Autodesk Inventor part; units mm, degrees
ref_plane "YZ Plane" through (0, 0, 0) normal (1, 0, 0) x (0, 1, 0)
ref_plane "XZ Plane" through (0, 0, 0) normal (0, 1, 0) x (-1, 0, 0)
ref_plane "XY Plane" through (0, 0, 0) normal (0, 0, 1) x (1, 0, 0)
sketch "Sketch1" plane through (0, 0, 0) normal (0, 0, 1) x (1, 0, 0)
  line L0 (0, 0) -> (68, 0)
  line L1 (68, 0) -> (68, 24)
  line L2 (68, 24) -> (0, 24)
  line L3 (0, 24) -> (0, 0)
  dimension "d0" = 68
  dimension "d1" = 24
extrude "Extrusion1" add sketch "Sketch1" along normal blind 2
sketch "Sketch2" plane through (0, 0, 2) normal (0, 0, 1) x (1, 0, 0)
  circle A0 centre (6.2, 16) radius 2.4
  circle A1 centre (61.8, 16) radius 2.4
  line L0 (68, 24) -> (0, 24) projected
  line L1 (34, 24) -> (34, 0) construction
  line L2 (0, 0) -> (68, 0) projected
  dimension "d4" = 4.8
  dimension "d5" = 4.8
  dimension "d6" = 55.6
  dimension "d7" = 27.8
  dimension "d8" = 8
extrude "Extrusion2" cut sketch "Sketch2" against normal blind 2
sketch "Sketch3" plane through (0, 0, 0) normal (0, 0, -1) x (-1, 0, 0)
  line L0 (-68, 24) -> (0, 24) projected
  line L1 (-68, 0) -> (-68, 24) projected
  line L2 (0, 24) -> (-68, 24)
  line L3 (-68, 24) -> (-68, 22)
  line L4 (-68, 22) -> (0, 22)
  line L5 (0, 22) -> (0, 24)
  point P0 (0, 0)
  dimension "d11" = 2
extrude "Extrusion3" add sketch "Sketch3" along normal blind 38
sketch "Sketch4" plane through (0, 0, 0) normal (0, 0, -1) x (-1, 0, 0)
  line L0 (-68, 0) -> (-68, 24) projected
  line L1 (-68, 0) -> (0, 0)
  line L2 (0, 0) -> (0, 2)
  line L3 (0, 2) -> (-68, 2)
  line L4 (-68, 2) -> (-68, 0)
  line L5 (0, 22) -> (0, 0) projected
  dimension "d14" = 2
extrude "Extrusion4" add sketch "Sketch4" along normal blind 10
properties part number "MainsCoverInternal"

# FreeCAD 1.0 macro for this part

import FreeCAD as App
import Part
import Sketcher
from FreeCAD import Vector

doc = App.newDocument("Part")
body = doc.addObject("PartDesign::Body", "Body")

# Sketch on XY plane
sketch1 = body.newObject("Sketcher::SketchObject", "Sketch")
sketch1.AttachmentSupport = (doc.getObject("XY_Plane"), [""])
sketch1.MapMode = "FlatFace"
sketch1.addGeometry(Part.LineSegment(Vector(0, 24, 0), Vector(0, 0, 0)), False)
sketch1.addGeometry(Part.LineSegment(Vector(0, 0, 0), Vector(68, 0, 0)), False)
sketch1.addGeometry(Part.LineSegment(Vector(68, 0, 0), Vector(68, 24, 0)), False)
sketch1.addGeometry(Part.LineSegment(Vector(68, 24, 0), Vector(0, 24, 0)), False)
sketch1.addConstraint(Sketcher.Constraint("Coincident", 0, 2, 1, 1))
sketch1.addConstraint(Sketcher.Constraint("Coincident", 1, 2, 2, 1))
sketch1.addConstraint(Sketcher.Constraint("Coincident", 2, 2, 3, 1))
sketch1.addConstraint(Sketcher.Constraint("Coincident", 3, 2, 0, 1))
sketch1.addConstraint(Sketcher.Constraint("Vertical", 0))
sketch1.addConstraint(Sketcher.Constraint("Horizontal", 1))
sketch1.addConstraint(Sketcher.Constraint("Vertical", 2))
sketch1.addConstraint(Sketcher.Constraint("Horizontal", 3))
sketch1.addConstraint(Sketcher.Constraint("Coincident", 0, 2, -1, 1))
sketch1.addConstraint(Sketcher.Constraint("DistanceX", 1, 1, 1, 2, 68.0))
sketch1.addConstraint(Sketcher.Constraint("DistanceY", 0, 2, 0, 1, 24.0))
pad1 = body.newObject("PartDesign::Pad", "Pad")
pad1.Profile = sketch1
pad1.Length = 2

# Sketch on XY plane
sketch2 = body.newObject("Sketcher::SketchObject", "Sketch001")
sketch2.AttachmentSupport = (doc.getObject("XY_Plane"), [""])
sketch2.MapMode = "FlatFace"
sketch2.AttachmentOffset = App.Placement(Vector(0, 0, 2), App.Rotation())
sketch2.addGeometry(Part.Circle(Vector(6.2, 16, 0), Vector(0, 0, 1), 2.4), False)
sketch2.addGeometry(Part.Circle(Vector(61.8, 16, 0), Vector(0, 0, 1), 2.4), False)
sketch2.addConstraint(Sketcher.Constraint("Equal", 0, 1))
sketch2.addConstraint(Sketcher.Constraint("Horizontal", 0, 3, 1, 3))
sketch2.addConstraint(Sketcher.Constraint("Diameter", 0, 4.8))
sketch2.addConstraint(Sketcher.Constraint("DistanceX", 0, 3, 1, 3, 55.6))
sketch2.addConstraint(Sketcher.Constraint("DistanceY", -1, 1, 0, 3, 16.0))
sketch2.addConstraint(Sketcher.Constraint("DistanceX", -1, 1, 0, 3, 6.2))
pocket1 = body.newObject("PartDesign::Pocket", "Pocket")
pocket1.Profile = sketch2
pocket1.Length = 2

# Sketch on XY plane
sketch3 = body.newObject("Sketcher::SketchObject", "Sketch002")
sketch3.AttachmentSupport = (doc.getObject("XY_Plane"), [""])
sketch3.MapMode = "FlatFace"
sketch3.addGeometry(Part.LineSegment(Vector(0, 24, 0), Vector(68, 24, 0)), False)
sketch3.addGeometry(Part.LineSegment(Vector(68, 24, 0), Vector(68, 22, 0)), False)
sketch3.addGeometry(Part.LineSegment(Vector(68, 22, 0), Vector(0, 22, 0)), False)
sketch3.addGeometry(Part.LineSegment(Vector(0, 22, 0), Vector(0, 24, 0)), False)
sketch3.addConstraint(Sketcher.Constraint("Coincident", 0, 2, 1, 1))
sketch3.addConstraint(Sketcher.Constraint("Coincident", 1, 2, 2, 1))
sketch3.addConstraint(Sketcher.Constraint("Coincident", 2, 2, 3, 1))
sketch3.addConstraint(Sketcher.Constraint("Coincident", 3, 2, 0, 1))
sketch3.addConstraint(Sketcher.Constraint("Horizontal", 0))
sketch3.addConstraint(Sketcher.Constraint("Vertical", 1))
sketch3.addConstraint(Sketcher.Constraint("Horizontal", 2))
sketch3.addConstraint(Sketcher.Constraint("Vertical", 3))
sketch3.addConstraint(Sketcher.Constraint("PointOnObject", 2, 2, -2))
sketch3.addConstraint(Sketcher.Constraint("DistanceY", 1, 2, 1, 1, 2.0))
sketch3.addConstraint(Sketcher.Constraint("DistanceX", 0, 1, 0, 2, 68.0))
sketch3.addConstraint(Sketcher.Constraint("DistanceY", -1, 1, 0, 2, 24.0))
pad2 = body.newObject("PartDesign::Pad", "Pad001")
pad2.Profile = sketch3
pad2.Length = 38
pad2.Reversed = True

# Sketch on XY plane
sketch4 = body.newObject("Sketcher::SketchObject", "Sketch003")
sketch4.AttachmentSupport = (doc.getObject("XY_Plane"), [""])
sketch4.MapMode = "FlatFace"
sketch4.addGeometry(Part.LineSegment(Vector(68, 2, 0), Vector(68, 0, 0)), False)
sketch4.addGeometry(Part.LineSegment(Vector(68, 0, 0), Vector(0, 0, 0)), False)
sketch4.addGeometry(Part.LineSegment(Vector(0, 0, 0), Vector(0, 2, 0)), False)
sketch4.addGeometry(Part.LineSegment(Vector(0, 2, 0), Vector(68, 2, 0)), False)
sketch4.addConstraint(Sketcher.Constraint("Coincident", 0, 2, 1, 1))
sketch4.addConstraint(Sketcher.Constraint("Coincident", 1, 2, 2, 1))
sketch4.addConstraint(Sketcher.Constraint("Coincident", 2, 2, 3, 1))
sketch4.addConstraint(Sketcher.Constraint("Coincident", 3, 2, 0, 1))
sketch4.addConstraint(Sketcher.Constraint("Vertical", 0))
sketch4.addConstraint(Sketcher.Constraint("Horizontal", 1))
sketch4.addConstraint(Sketcher.Constraint("Vertical", 2))
sketch4.addConstraint(Sketcher.Constraint("Horizontal", 3))
sketch4.addConstraint(Sketcher.Constraint("Coincident", 1, 2, -1, 1))
sketch4.addConstraint(Sketcher.Constraint("DistanceY", 0, 2, 0, 1, 2.0))
sketch4.addConstraint(Sketcher.Constraint("DistanceX", 1, 2, 1, 1, 68.0))
pad3 = body.newObject("PartDesign::Pad", "Pad002")
pad3.Profile = sketch4
pad3.Length = 10
pad3.Reversed = True

doc.recompute()
